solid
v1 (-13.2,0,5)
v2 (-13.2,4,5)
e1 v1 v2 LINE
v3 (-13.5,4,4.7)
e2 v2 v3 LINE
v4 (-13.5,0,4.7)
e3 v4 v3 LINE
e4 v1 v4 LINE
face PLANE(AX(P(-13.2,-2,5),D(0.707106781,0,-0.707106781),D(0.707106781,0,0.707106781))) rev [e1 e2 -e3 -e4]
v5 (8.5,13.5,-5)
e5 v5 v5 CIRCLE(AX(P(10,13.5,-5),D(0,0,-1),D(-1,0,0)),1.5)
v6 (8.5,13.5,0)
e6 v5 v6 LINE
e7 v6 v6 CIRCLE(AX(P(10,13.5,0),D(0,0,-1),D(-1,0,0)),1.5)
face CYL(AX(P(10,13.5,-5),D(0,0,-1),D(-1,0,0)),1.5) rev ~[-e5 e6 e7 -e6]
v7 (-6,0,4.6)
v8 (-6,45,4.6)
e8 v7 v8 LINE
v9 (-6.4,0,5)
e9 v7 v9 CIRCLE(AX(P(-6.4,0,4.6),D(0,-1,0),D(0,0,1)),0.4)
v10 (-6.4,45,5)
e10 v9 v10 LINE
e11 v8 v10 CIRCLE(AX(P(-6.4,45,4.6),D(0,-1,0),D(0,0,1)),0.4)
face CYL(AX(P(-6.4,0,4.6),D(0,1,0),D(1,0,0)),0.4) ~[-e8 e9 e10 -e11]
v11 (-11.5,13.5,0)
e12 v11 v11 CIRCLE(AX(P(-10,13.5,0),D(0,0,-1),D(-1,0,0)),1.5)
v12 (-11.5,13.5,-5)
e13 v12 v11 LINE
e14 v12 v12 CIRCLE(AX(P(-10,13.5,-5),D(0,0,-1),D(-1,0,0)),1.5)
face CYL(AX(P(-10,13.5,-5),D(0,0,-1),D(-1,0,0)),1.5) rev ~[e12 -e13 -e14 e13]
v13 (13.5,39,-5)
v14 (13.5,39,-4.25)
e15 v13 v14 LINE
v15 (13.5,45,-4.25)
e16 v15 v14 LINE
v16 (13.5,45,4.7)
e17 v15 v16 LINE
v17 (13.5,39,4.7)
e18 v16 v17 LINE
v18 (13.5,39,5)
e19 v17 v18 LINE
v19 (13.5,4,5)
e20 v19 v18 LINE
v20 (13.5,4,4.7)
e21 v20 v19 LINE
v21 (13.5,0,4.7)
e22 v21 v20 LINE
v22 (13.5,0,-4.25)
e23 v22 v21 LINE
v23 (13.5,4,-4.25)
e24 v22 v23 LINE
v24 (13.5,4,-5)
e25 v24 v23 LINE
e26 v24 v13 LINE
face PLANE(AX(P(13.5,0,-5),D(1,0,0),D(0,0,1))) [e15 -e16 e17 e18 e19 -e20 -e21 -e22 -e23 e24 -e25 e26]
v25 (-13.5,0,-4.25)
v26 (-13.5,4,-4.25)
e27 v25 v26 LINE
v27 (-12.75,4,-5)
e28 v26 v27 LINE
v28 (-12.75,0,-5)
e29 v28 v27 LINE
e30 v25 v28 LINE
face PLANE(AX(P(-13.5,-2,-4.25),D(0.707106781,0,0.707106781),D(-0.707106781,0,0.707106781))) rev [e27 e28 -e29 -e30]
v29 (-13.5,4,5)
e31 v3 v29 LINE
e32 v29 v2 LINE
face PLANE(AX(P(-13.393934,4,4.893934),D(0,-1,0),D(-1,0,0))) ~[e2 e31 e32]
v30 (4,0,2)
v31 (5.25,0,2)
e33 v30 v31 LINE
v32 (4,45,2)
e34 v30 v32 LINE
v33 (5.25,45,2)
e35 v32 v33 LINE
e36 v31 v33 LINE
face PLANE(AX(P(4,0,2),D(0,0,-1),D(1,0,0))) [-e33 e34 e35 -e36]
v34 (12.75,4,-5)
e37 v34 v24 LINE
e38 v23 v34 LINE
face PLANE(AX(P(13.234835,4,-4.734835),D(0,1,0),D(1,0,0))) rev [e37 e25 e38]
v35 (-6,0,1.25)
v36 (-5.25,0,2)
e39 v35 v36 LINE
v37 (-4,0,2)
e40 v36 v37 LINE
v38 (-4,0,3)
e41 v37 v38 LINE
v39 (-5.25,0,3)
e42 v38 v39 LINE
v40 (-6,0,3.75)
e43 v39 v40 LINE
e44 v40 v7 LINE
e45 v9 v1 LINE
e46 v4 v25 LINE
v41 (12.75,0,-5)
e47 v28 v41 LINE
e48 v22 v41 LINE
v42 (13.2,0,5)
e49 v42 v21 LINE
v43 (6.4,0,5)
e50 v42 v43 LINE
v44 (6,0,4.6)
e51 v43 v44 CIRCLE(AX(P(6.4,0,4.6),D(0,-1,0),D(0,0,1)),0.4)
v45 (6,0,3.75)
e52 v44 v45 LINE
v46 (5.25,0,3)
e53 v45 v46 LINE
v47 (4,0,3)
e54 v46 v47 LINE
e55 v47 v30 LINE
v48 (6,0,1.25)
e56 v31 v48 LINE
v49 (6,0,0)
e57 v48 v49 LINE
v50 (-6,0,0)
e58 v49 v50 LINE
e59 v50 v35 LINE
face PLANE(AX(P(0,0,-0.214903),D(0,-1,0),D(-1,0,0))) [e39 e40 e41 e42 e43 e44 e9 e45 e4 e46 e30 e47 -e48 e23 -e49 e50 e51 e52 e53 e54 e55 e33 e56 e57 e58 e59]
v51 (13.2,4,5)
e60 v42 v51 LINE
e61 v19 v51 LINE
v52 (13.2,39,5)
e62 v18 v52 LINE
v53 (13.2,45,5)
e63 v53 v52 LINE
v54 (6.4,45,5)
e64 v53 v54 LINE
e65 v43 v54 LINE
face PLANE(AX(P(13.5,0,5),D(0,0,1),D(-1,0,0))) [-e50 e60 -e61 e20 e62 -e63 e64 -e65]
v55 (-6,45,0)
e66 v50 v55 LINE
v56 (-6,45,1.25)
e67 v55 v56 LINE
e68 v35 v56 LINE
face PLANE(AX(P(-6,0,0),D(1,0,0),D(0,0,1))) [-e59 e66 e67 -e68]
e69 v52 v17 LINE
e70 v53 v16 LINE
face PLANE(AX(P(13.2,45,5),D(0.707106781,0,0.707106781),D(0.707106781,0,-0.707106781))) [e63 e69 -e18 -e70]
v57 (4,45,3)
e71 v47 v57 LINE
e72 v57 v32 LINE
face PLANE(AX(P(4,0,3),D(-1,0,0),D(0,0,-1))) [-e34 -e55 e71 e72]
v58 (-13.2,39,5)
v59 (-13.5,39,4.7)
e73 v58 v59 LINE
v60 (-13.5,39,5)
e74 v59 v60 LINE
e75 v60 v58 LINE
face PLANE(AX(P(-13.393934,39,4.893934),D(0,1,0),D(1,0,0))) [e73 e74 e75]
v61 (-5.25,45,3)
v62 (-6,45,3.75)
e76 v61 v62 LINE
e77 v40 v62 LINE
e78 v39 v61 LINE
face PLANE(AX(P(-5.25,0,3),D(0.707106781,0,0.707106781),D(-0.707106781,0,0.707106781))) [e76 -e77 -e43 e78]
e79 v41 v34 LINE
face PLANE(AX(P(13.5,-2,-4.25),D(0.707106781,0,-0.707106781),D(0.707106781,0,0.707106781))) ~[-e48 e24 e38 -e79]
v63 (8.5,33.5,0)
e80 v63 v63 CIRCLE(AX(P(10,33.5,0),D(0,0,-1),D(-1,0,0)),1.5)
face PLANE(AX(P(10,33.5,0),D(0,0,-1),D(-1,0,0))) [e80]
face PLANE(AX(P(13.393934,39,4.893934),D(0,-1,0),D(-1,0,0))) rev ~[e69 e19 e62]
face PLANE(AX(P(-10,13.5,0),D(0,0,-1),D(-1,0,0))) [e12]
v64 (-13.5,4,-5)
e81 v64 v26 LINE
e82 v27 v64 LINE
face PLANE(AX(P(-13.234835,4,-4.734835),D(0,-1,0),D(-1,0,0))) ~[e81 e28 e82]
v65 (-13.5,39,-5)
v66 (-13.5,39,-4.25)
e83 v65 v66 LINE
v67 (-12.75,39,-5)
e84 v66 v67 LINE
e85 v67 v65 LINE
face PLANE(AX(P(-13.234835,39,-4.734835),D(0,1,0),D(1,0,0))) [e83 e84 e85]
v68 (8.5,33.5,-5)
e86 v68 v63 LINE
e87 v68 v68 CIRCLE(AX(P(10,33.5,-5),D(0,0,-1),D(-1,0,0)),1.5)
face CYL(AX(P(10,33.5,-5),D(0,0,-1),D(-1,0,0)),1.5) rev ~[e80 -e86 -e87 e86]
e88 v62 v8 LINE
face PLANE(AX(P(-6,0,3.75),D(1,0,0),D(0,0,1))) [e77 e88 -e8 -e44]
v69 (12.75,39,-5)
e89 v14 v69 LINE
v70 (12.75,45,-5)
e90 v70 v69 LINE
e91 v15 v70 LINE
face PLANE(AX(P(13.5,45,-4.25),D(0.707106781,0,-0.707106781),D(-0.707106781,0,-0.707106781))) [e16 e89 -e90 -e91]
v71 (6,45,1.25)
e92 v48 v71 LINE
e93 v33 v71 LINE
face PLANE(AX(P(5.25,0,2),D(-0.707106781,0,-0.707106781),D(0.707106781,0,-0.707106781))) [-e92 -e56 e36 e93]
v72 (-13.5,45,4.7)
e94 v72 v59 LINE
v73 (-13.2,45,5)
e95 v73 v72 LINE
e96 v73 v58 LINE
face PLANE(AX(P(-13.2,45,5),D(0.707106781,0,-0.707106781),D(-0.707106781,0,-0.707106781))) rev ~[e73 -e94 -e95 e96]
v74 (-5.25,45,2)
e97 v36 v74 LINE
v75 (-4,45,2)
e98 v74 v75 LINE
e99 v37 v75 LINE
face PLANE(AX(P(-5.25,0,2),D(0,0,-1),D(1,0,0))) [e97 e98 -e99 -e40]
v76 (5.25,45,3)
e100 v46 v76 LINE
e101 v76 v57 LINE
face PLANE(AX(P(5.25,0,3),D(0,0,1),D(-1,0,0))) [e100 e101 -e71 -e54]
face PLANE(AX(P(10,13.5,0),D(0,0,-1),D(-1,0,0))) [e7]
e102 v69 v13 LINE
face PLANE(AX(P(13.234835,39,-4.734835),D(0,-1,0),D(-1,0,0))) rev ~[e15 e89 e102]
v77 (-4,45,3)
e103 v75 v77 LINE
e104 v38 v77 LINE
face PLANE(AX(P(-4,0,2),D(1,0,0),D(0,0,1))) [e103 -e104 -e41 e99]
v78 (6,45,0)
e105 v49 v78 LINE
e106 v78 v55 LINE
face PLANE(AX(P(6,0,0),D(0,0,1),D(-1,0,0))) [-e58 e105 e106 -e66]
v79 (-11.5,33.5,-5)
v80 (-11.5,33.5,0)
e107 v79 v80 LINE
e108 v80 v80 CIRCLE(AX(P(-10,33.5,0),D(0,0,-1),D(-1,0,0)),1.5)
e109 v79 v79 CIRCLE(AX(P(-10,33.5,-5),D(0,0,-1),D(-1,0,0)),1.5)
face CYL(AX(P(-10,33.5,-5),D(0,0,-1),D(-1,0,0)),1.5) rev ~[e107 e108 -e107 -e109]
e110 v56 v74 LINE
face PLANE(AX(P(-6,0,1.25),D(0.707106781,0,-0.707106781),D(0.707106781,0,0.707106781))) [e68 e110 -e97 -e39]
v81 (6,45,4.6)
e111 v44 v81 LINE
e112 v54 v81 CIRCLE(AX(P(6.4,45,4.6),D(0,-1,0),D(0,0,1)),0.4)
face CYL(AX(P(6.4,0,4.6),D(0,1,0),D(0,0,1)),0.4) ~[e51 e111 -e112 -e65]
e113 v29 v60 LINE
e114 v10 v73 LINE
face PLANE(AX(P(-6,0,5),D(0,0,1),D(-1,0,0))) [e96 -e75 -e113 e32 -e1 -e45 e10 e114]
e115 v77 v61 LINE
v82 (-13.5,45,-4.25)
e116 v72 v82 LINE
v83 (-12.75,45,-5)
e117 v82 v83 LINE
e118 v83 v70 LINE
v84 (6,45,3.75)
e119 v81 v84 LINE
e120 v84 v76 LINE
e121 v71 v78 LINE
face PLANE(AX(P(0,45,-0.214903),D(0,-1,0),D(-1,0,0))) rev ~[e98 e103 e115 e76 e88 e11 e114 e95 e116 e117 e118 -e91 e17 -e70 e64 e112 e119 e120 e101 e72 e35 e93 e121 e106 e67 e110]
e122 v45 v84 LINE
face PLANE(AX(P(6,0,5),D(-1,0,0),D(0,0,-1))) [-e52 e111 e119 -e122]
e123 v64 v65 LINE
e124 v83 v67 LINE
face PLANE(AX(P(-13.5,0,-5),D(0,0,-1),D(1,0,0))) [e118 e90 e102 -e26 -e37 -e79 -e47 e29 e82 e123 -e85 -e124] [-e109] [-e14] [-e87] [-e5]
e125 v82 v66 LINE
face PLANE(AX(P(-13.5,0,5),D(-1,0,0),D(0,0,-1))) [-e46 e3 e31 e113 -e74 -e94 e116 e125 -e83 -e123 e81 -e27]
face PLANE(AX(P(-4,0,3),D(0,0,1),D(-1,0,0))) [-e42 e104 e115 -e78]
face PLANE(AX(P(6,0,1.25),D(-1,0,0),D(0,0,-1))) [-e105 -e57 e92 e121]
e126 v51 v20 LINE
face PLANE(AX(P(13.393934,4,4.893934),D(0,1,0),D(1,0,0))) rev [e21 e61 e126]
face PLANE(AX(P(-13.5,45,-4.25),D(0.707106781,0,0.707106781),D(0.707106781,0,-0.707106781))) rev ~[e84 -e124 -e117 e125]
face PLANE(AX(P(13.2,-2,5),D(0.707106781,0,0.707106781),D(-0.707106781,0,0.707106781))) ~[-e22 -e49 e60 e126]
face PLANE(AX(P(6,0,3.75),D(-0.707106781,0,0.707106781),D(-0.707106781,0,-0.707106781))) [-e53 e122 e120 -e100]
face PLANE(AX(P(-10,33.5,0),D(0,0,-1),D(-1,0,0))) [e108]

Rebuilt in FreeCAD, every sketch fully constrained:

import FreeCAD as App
import Part
import Sketcher
from FreeCAD import Vector


def edges_at(feature, points):
    """Names of the edges that pass closest to the given points."""
    edges = feature.Shape.Edges
    near = lambda p: min(range(len(edges)), key=lambda i: edges[i].distToShape(Part.Vertex(*p))[0])
    return sorted({f"Edge{near(p) + 1}" for p in points})

doc = App.newDocument("Part")
body = doc.addObject("PartDesign::Body", "Body")

# Sketch on XZ plane
sketch1 = body.newObject("Sketcher::SketchObject", "Sketch")
sketch1.AttachmentSupport = (doc.getObject("XZ_Plane"), [""])
sketch1.MapMode = "FlatFace"
sketch1.addGeometry(Part.LineSegment(Vector(13.5, -5, 0), Vector(-13.5, -5, 0)), False)
sketch1.addGeometry(Part.LineSegment(Vector(-13.5, -5, 0), Vector(-13.5, 5, 0)), False)
sketch1.addGeometry(Part.LineSegment(Vector(-13.5, 5, 0), Vector(-6, 5, 0)), False)
sketch1.addGeometry(Part.LineSegment(Vector(-6, 5, 0), Vector(-6, 3.75, 0)), False)
sketch1.addGeometry(Part.LineSegment(Vector(-6, 3.75, 0), Vector(-5.25, 3, 0)), False)
sketch1.addGeometry(Part.LineSegment(Vector(-5.25, 3, 0), Vector(-4, 3, 0)), False)
sketch1.addGeometry(Part.LineSegment(Vector(-4, 3, 0), Vector(-4, 2, 0)), False)
sketch1.addGeometry(Part.LineSegment(Vector(-4, 2, 0), Vector(-5.25, 2, 0)), False)
sketch1.addGeometry(Part.LineSegment(Vector(-5.25, 2, 0), Vector(-6, 1.25, 0)), False)
sketch1.addGeometry(Part.LineSegment(Vector(-6, 1.25, 0), Vector(-6, 0, 0)), False)
sketch1.addGeometry(Part.LineSegment(Vector(-6, 0, 0), Vector(6, 0, 0)), False)
sketch1.addGeometry(Part.LineSegment(Vector(6, 0, 0), Vector(6, 1.25, 0)), False)
sketch1.addGeometry(Part.LineSegment(Vector(6, 1.25, 0), Vector(5.25, 2, 0)), False)
sketch1.addGeometry(Part.LineSegment(Vector(5.25, 2, 0), Vector(4, 2, 0)), False)
sketch1.addGeometry(Part.LineSegment(Vector(4, 2, 0), Vector(4, 3, 0)), False)
sketch1.addGeometry(Part.LineSegment(Vector(4, 3, 0), Vector(5.25, 3, 0)), False)
sketch1.addGeometry(Part.LineSegment(Vector(5.25, 3, 0), Vector(6, 3.75, 0)), False)
sketch1.addGeometry(Part.LineSegment(Vector(6, 3.75, 0), Vector(6, 5, 0)), False)
sketch1.addGeometry(Part.LineSegment(Vector(6, 5, 0), Vector(13.5, 5, 0)), False)
sketch1.addGeometry(Part.LineSegment(Vector(13.5, 5, 0), Vector(13.5, -5, 0)), False)
sketch1.addConstraint(Sketcher.Constraint("Coincident", 0, 2, 1, 1))
sketch1.addConstraint(Sketcher.Constraint("Coincident", 1, 2, 2, 1))
sketch1.addConstraint(Sketcher.Constraint("Coincident", 2, 2, 3, 1))
sketch1.addConstraint(Sketcher.Constraint("Coincident", 3, 2, 4, 1))
sketch1.addConstraint(Sketcher.Constraint("Coincident", 4, 2, 5, 1))
sketch1.addConstraint(Sketcher.Constraint("Coincident", 5, 2, 6, 1))
sketch1.addConstraint(Sketcher.Constraint("Coincident", 6, 2, 7, 1))
sketch1.addConstraint(Sketcher.Constraint("Coincident", 7, 2, 8, 1))
sketch1.addConstraint(Sketcher.Constraint("Coincident", 8, 2, 9, 1))
sketch1.addConstraint(Sketcher.Constraint("Coincident", 9, 2, 10, 1))
sketch1.addConstraint(Sketcher.Constraint("Coincident", 10, 2, 11, 1))
sketch1.addConstraint(Sketcher.Constraint("Coincident", 11, 2, 12, 1))
sketch1.addConstraint(Sketcher.Constraint("Coincident", 12, 2, 13, 1))
sketch1.addConstraint(Sketcher.Constraint("Coincident", 13, 2, 14, 1))
sketch1.addConstraint(Sketcher.Constraint("Coincident", 14, 2, 15, 1))
sketch1.addConstraint(Sketcher.Constraint("Coincident", 15, 2, 16, 1))
sketch1.addConstraint(Sketcher.Constraint("Coincident", 16, 2, 17, 1))
sketch1.addConstraint(Sketcher.Constraint("Coincident", 17, 2, 18, 1))
sketch1.addConstraint(Sketcher.Constraint("Coincident", 18, 2, 19, 1))
sketch1.addConstraint(Sketcher.Constraint("Coincident", 19, 2, 0, 1))
sketch1.addConstraint(Sketcher.Constraint("Horizontal", 0))
sketch1.addConstraint(Sketcher.Constraint("Vertical", 1))
sketch1.addConstraint(Sketcher.Constraint("Horizontal", 2))
sketch1.addConstraint(Sketcher.Constraint("Vertical", 3))
sketch1.addConstraint(Sketcher.Constraint("Horizontal", 5))
sketch1.addConstraint(Sketcher.Constraint("Vertical", 6))
sketch1.addConstraint(Sketcher.Constraint("Horizontal", 7))
sketch1.addConstraint(Sketcher.Constraint("Vertical", 9))
sketch1.addConstraint(Sketcher.Constraint("Horizontal", 10))
sketch1.addConstraint(Sketcher.Constraint("Vertical", 11))
sketch1.addConstraint(Sketcher.Constraint("Horizontal", 13))
sketch1.addConstraint(Sketcher.Constraint("Vertical", 14))
sketch1.addConstraint(Sketcher.Constraint("Horizontal", 15))
sketch1.addConstraint(Sketcher.Constraint("Vertical", 17))
sketch1.addConstraint(Sketcher.Constraint("Horizontal", 18))
sketch1.addConstraint(Sketcher.Constraint("Vertical", 19))
sketch1.addConstraint(Sketcher.Constraint("Symmetric", 9, 2, 10, 2, -1, 1))
sketch1.addConstraint(Sketcher.Constraint("Symmetric", 0, 2, 18, 2, -1, 1))
sketch1.addConstraint(Sketcher.Constraint("Symmetric", 7, 2, 12, 2, -2))
sketch1.addConstraint(Sketcher.Constraint("Symmetric", 5, 2, 14, 2, -2))
sketch1.addConstraint(Sketcher.Constraint("Symmetric", 3, 2, 16, 2, -2))
sketch1.addConstraint(Sketcher.Constraint("Perpendicular", 4, 8))
sketch1.addConstraint(Sketcher.Constraint("Perpendicular", 8, 12))
sketch1.addConstraint(Sketcher.Constraint("Perpendicular", 12, 16))
sketch1.addConstraint(Sketcher.Constraint("Horizontal", 8, 2, 11, 2))
sketch1.addConstraint(Sketcher.Constraint("Horizontal", 2, 2, 17, 2))
sketch1.addConstraint(Sketcher.Constraint("Vertical", 4, 2, 7, 2))
sketch1.addConstraint(Sketcher.Constraint("Vertical", 3, 2, 8, 2))
sketch1.addConstraint(Sketcher.Constraint("Equal", 15, 3))
sketch1.addConstraint(Sketcher.Constraint("Equal", 3, 9))
sketch1.addConstraint(Sketcher.Constraint("DistanceX", 0, 2, 0, 1, 27.0))
sketch1.addConstraint(Sketcher.Constraint("DistanceX", 10, 1, 10, 2, 12.0))
sketch1.addConstraint(Sketcher.Constraint("DistanceY", 1, 1, 1, 2, 10.0))
sketch1.addConstraint(Sketcher.Constraint("DistanceY", 6, 2, 6, 1, 1.0))
sketch1.addConstraint(Sketcher.Constraint("DistanceX", 5, 1, 5, 2, 1.25))
pad1 = body.newObject("PartDesign::Pad", "Pad")
pad1.Profile = sketch1
pad1.Length = 45
pad1.Reversed = True
doc.recompute()

fillet = body.newObject("PartDesign::Fillet", "Fillet")
fillet.Base = (pad1, edges_at(pad1, [(6, 22.5, 5), (-6, 22.5, 5)]))
fillet.Radius = 0.4

# Sketch on XY plane
sketch2 = body.newObject("Sketcher::SketchObject", "Sketch001")
sketch2.AttachmentSupport = (doc.getObject("XY_Plane"), [""])
sketch2.MapMode = "FlatFace"
sketch2.AttachmentOffset = App.Placement(Vector(0, 0, -5), App.Rotation())
sketch2.addGeometry(Part.Circle(Vector(-10, 33.5, 0), Vector(0, 0, 1), 1.5), False)
sketch2.addGeometry(Part.Circle(Vector(10, 33.5, 0), Vector(0, 0, 1), 1.5), False)
sketch2.addGeometry(Part.Circle(Vector(10, 13.5, 0), Vector(0, 0, 1), 1.5), False)
sketch2.addGeometry(Part.Circle(Vector(-10, 13.5, 0), Vector(0, 0, 1), 1.5), False)
sketch2.addConstraint(Sketcher.Constraint("Equal", 0, 1))
sketch2.addConstraint(Sketcher.Constraint("Equal", 1, 2))
sketch2.addConstraint(Sketcher.Constraint("Equal", 2, 3))
sketch2.addConstraint(Sketcher.Constraint("Symmetric", 0, 3, 1, 3, -2))
sketch2.addConstraint(Sketcher.Constraint("Symmetric", 2, 3, 3, 3, -2))
sketch2.addConstraint(Sketcher.Constraint("Vertical", 1, 3, 2, 3))
sketch2.addConstraint(Sketcher.Constraint("Diameter", 0, 3.0))
sketch2.addConstraint(Sketcher.Constraint("DistanceX", 0, 3, -1, 1, 10.0))
sketch2.addConstraint(Sketcher.Constraint("DistanceY", 2, 3, 1, 3, 20.0))
sketch2.addConstraint(Sketcher.Constraint("DistanceY", -1, 1, 0, 3, 33.5))
pocket1 = body.newObject("PartDesign::Pocket", "Pocket")
pocket1.Profile = sketch2
pocket1.Length = 5
pocket1.Reversed = True

# Sketch on XZ plane
sketch3 = body.newObject("Sketcher::SketchObject", "Sketch002")
sketch3.AttachmentSupport = (doc.getObject("XZ_Plane"), [""])
sketch3.MapMode = "FlatFace"
sketch3.AttachmentOffset = App.Placement(Vector(0, 0, -45), App.Rotation())
sketch3.addGeometry(Part.LineSegment(Vector(-13.5, -5, 0), Vector(-13.5, -4.25, 0)), False)
sketch3.addGeometry(Part.LineSegment(Vector(-13.5, -4.25, 0), Vector(-12.75, -5, 0)), False)
sketch3.addGeometry(Part.LineSegment(Vector(-12.75, -5, 0), Vector(-13.5, -5, 0)), False)
sketch3.addGeometry(Part.LineSegment(Vector(12.75, -5, 0), Vector(13.5, -4.25, 0)), False)
sketch3.addGeometry(Part.LineSegment(Vector(13.5, -4.25, 0), Vector(13.5, -5, 0)), False)
sketch3.addGeometry(Part.LineSegment(Vector(13.5, -5, 0), Vector(12.75, -5, 0)), False)
sketch3.addGeometry(Part.LineSegment(Vector(-13.5, 5, 0), Vector(-13.2, 5, 0)), False)
sketch3.addGeometry(Part.LineSegment(Vector(-13.2, 5, 0), Vector(-13.5, 4.7, 0)), False)
sketch3.addGeometry(Part.LineSegment(Vector(-13.5, 4.7, 0), Vector(-13.5, 5, 0)), False)
sketch3.addGeometry(Part.LineSegment(Vector(13.5, 4.7, 0), Vector(13.2, 5, 0)), False)
sketch3.addGeometry(Part.LineSegment(Vector(13.2, 5, 0), Vector(13.5, 5, 0)), False)
sketch3.addGeometry(Part.LineSegment(Vector(13.5, 5, 0), Vector(13.5, 4.7, 0)), False)
sketch3.addConstraint(Sketcher.Constraint("Coincident", 0, 2, 1, 1))
sketch3.addConstraint(Sketcher.Constraint("Coincident", 1, 2, 2, 1))
sketch3.addConstraint(Sketcher.Constraint("Coincident", 2, 2, 0, 1))
sketch3.addConstraint(Sketcher.Constraint("Coincident", 3, 2, 4, 1))
sketch3.addConstraint(Sketcher.Constraint("Coincident", 4, 2, 5, 1))
sketch3.addConstraint(Sketcher.Constraint("Coincident", 5, 2, 3, 1))
sketch3.addConstraint(Sketcher.Constraint("Coincident", 6, 2, 7, 1))
sketch3.addConstraint(Sketcher.Constraint("Coincident", 7, 2, 8, 1))
sketch3.addConstraint(Sketcher.Constraint("Coincident", 8, 2, 6, 1))
sketch3.addConstraint(Sketcher.Constraint("Coincident", 9, 2, 10, 1))
sketch3.addConstraint(Sketcher.Constraint("Coincident", 10, 2, 11, 1))
sketch3.addConstraint(Sketcher.Constraint("Coincident", 11, 2, 9, 1))
sketch3.addConstraint(Sketcher.Constraint("Vertical", 0))
sketch3.addConstraint(Sketcher.Constraint("Horizontal", 2))
sketch3.addConstraint(Sketcher.Constraint("Vertical", 4))
sketch3.addConstraint(Sketcher.Constraint("Horizontal", 5))
sketch3.addConstraint(Sketcher.Constraint("Horizontal", 6))
sketch3.addConstraint(Sketcher.Constraint("Vertical", 8))
sketch3.addConstraint(Sketcher.Constraint("Horizontal", 10))
sketch3.addConstraint(Sketcher.Constraint("Vertical", 11))
sketch3.addConstraint(Sketcher.Constraint("Symmetric", 4, 2, 8, 2, -1, 1))
sketch3.addConstraint(Sketcher.Constraint("Symmetric", 2, 2, 10, 2, -1, 1))
sketch3.addConstraint(Sketcher.Constraint("Symmetric", 0, 2, 3, 2, -2))
sketch3.addConstraint(Sketcher.Constraint("Symmetric", 1, 2, 5, 2, -2))
sketch3.addConstraint(Sketcher.Constraint("Perpendicular", 1, 3))
sketch3.addConstraint(Sketcher.Constraint("Parallel", 3, 7))
sketch3.addConstraint(Sketcher.Constraint("Perpendicular", 7, 9))
sketch3.addConstraint(Sketcher.Constraint("Horizontal", 7, 2, 11, 2))
sketch3.addConstraint(Sketcher.Constraint("DistanceX", 6, 1, 6, 2, 0.3))
sketch3.addConstraint(Sketcher.Constraint("DistanceY", 1, 2, -1, 1, 5.0))
sketch3.addConstraint(Sketcher.Constraint("DistanceX", 0, 2, 3, 2, 27.0))
sketch3.addConstraint(Sketcher.Constraint("DistanceX", 2, 2, 2, 1, 0.75))
pocket2 = body.newObject("PartDesign::Pocket", "Pocket001")
pocket2.Profile = sketch3
pocket2.Length = 6
pocket2.Reversed = True
doc.recompute()

datumplane = body.newObject("PartDesign::Plane", "DatumPlane")
datumplane.AttachmentSupport = (doc.getObject("XZ_Plane"), [""])
datumplane.MapMode = "FlatFace"
datumplane.AttachmentOffset = App.Placement(Vector(0, 0, -21.5), App.Rotation())
mirrored = body.newObject("PartDesign::Mirrored", "Mirrored")
mirrored.Originals = [pocket2]
mirrored.MirrorPlane = (datumplane, [""])
body.Tip = mirrored

doc.recompute()
